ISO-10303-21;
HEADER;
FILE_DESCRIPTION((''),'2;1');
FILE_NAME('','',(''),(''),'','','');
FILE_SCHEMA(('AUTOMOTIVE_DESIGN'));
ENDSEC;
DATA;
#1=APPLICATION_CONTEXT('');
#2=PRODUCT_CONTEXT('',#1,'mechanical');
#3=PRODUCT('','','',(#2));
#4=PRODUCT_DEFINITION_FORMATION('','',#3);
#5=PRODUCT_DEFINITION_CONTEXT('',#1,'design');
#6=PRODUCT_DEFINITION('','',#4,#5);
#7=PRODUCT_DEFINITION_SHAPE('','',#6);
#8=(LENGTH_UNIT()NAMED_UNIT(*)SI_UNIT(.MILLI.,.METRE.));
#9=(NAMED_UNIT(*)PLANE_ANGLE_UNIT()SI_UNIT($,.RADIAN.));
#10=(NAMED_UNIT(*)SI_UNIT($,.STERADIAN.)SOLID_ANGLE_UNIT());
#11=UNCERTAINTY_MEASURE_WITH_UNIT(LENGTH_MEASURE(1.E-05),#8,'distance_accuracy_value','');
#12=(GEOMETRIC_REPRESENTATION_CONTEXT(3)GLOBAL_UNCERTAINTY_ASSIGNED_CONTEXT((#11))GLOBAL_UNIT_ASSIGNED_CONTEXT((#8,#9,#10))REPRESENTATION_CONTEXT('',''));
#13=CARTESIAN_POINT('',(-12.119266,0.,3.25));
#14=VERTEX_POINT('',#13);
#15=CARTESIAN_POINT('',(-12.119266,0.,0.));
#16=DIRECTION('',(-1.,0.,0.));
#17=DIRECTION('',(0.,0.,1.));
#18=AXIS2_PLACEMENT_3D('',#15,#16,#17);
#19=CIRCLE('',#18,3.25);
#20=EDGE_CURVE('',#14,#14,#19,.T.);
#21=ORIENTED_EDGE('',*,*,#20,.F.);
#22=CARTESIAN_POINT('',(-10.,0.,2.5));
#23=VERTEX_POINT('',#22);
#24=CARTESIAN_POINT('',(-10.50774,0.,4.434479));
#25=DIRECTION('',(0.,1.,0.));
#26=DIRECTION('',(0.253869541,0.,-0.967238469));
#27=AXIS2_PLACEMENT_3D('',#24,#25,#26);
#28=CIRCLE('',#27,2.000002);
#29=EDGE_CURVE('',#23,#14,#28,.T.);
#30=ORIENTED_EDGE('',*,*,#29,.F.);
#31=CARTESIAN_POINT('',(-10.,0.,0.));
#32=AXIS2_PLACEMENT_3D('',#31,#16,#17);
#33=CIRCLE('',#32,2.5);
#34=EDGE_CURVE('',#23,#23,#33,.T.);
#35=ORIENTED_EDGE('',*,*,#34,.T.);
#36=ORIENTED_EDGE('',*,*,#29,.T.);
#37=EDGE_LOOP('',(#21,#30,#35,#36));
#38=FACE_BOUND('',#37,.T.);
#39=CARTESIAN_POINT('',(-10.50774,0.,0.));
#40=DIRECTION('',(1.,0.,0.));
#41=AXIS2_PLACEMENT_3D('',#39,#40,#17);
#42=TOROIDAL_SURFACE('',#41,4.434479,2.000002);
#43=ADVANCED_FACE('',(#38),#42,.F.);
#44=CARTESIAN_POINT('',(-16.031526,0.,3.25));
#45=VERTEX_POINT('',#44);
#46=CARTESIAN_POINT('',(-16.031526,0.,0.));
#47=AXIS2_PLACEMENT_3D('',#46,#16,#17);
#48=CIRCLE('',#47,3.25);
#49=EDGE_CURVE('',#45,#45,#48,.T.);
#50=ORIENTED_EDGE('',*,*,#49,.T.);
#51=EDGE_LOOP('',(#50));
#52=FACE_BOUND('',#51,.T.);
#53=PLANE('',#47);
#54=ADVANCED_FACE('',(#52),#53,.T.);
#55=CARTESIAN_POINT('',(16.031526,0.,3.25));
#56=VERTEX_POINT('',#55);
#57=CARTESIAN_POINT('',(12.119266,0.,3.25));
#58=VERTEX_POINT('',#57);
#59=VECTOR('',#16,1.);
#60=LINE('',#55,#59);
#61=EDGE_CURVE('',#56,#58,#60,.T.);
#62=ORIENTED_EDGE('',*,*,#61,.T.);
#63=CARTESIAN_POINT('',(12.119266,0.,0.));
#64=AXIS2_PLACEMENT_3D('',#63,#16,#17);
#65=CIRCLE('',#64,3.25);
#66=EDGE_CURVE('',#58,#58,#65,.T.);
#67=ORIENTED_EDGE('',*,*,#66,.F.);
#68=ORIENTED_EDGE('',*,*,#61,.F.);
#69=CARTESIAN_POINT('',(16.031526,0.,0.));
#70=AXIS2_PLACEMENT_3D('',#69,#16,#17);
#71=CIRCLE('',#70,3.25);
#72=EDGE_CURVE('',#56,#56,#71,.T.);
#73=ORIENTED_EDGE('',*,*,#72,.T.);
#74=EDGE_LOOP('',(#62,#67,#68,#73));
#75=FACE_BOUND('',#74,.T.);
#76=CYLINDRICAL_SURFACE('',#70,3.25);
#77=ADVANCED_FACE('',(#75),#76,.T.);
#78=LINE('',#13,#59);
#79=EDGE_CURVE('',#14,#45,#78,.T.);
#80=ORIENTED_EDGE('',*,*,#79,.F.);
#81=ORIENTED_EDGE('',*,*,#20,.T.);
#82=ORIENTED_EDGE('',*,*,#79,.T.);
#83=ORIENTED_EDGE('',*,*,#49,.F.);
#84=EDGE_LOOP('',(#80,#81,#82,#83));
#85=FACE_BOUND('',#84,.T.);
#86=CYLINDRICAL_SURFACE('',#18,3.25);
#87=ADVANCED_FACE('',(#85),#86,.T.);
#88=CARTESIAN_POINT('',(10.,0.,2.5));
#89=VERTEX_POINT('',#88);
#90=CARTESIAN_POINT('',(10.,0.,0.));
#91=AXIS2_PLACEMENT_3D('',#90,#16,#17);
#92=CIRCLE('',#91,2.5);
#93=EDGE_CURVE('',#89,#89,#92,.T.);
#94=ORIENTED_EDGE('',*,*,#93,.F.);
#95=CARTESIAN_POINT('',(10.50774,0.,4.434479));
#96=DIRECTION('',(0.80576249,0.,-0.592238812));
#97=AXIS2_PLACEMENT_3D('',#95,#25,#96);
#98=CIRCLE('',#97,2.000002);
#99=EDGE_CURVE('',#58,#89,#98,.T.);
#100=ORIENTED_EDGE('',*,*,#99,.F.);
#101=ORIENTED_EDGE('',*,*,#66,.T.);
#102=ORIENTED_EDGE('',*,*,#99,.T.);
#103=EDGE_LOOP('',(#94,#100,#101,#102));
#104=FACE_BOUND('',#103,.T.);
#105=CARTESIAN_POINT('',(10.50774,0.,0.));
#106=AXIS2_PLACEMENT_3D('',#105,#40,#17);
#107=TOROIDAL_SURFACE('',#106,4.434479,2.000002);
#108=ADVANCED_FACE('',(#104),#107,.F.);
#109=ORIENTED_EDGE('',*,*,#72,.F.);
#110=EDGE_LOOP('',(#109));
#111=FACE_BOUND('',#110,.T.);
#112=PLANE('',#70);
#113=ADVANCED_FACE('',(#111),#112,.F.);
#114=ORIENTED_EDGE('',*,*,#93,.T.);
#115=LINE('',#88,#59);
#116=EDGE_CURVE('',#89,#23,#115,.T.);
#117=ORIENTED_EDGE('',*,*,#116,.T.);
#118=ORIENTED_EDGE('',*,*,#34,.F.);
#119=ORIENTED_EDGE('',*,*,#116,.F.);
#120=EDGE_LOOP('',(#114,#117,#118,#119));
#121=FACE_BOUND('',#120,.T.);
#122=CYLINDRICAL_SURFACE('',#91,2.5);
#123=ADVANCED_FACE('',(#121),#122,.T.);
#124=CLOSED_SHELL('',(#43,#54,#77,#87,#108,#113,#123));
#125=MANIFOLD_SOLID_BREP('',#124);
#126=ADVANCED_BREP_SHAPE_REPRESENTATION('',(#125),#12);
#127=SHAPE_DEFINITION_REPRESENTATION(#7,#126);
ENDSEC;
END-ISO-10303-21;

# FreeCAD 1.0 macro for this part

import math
import FreeCAD as App
import Part
import Sketcher
Q = App.Units.Quantity

doc = App.newDocument("Part")
body = doc.addObject("PartDesign::Body", "Body")

# Sketch on XZ plane
sketch1 = doc.addObject("Sketcher::SketchObject", "Sketch")
body.addObject(sketch1)
sketch1.AttachmentSupport = (doc.XZ_Plane, [""])
sketch1.MapMode = "FlatFace"
sketch1.addGeometry([
    Part.LineSegment(App.Vector(-16, 0, 0), App.Vector(16, 0, 0)),  # 0
    Part.LineSegment(App.Vector(16, 0, 0), App.Vector(16, 3.2, 0)),  # 1
    Part.LineSegment(App.Vector(16, 3.2, 0), App.Vector(12.1, 3.2, 0)),  # 2
    Part.ArcOfCircle(Part.Circle(App.Vector(10.5, 4.4, 0), App.Vector(0, 0, 1), 2), math.radians(-105), math.radians(-36)),  # 3
    Part.LineSegment(App.Vector(10, 2.5, 0), App.Vector(-10, 2.5, 0)),  # 4
    Part.ArcOfCircle(Part.Circle(App.Vector(-10.5, 4.4, 0), App.Vector(0, 0, 1), 2), math.radians(-144), math.radians(-75)),  # 5
    Part.LineSegment(App.Vector(-12.1, 3.2, 0), App.Vector(-16, 3.2, 0)),  # 6
    Part.LineSegment(App.Vector(-16, 3.2, 0), App.Vector(-16, 0, 0)),  # 7
], False)
sketch1.addConstraint([
    Sketcher.Constraint("Coincident", 0, 2, 1, 1),
    Sketcher.Constraint("Coincident", 1, 2, 2, 1),
    Sketcher.Constraint("Coincident", 2, 2, 3, 2),
    Sketcher.Constraint("Coincident", 3, 1, 4, 1),
    Sketcher.Constraint("Coincident", 4, 2, 5, 2),
    Sketcher.Constraint("Coincident", 5, 1, 6, 1),
    Sketcher.Constraint("Coincident", 6, 2, 7, 1),
    Sketcher.Constraint("Coincident", 7, 2, 0, 1),
    Sketcher.Constraint("Horizontal", 0),
    Sketcher.Constraint("Vertical", 1),
    Sketcher.Constraint("Horizontal", 2),
    Sketcher.Constraint("Horizontal", 4),
    Sketcher.Constraint("Horizontal", 6),
    Sketcher.Constraint("Vertical", 7),
    Sketcher.Constraint("Equal", 3, 5),
    Sketcher.Constraint("Symmetric", 0, 2, 7, 2, -1, 1),
    Sketcher.Constraint("Symmetric", 3, 3, 5, 3, -2),
    Sketcher.Constraint("Horizontal", 2, 2, 5, 1),
    Sketcher.Constraint("Radius", 3, Q("2.000002 mm")),
    Sketcher.Constraint("DistanceX", 4, 2, 4, 1, Q("20 mm")),
    Sketcher.Constraint("DistanceY", 1, 1, 1, 2, Q("3.25 mm")),
    Sketcher.Constraint("DistanceY", -1, 1, 3, 1, Q("2.5 mm")),
    Sketcher.Constraint("DistanceX", 2, 2, 2, 1, Q("3.91226 mm")),
    Sketcher.Constraint("DistanceX", 0, 1, 0, 2, Q("32.063052 mm")),
])
revolution = doc.addObject("PartDesign::Revolution", "Revolution")
body.addObject(revolution)
revolution.Profile = sketch1
revolution.ReferenceAxis = (sketch1, ["H_Axis"])
revolution.Angle = 360

doc.recompute()
